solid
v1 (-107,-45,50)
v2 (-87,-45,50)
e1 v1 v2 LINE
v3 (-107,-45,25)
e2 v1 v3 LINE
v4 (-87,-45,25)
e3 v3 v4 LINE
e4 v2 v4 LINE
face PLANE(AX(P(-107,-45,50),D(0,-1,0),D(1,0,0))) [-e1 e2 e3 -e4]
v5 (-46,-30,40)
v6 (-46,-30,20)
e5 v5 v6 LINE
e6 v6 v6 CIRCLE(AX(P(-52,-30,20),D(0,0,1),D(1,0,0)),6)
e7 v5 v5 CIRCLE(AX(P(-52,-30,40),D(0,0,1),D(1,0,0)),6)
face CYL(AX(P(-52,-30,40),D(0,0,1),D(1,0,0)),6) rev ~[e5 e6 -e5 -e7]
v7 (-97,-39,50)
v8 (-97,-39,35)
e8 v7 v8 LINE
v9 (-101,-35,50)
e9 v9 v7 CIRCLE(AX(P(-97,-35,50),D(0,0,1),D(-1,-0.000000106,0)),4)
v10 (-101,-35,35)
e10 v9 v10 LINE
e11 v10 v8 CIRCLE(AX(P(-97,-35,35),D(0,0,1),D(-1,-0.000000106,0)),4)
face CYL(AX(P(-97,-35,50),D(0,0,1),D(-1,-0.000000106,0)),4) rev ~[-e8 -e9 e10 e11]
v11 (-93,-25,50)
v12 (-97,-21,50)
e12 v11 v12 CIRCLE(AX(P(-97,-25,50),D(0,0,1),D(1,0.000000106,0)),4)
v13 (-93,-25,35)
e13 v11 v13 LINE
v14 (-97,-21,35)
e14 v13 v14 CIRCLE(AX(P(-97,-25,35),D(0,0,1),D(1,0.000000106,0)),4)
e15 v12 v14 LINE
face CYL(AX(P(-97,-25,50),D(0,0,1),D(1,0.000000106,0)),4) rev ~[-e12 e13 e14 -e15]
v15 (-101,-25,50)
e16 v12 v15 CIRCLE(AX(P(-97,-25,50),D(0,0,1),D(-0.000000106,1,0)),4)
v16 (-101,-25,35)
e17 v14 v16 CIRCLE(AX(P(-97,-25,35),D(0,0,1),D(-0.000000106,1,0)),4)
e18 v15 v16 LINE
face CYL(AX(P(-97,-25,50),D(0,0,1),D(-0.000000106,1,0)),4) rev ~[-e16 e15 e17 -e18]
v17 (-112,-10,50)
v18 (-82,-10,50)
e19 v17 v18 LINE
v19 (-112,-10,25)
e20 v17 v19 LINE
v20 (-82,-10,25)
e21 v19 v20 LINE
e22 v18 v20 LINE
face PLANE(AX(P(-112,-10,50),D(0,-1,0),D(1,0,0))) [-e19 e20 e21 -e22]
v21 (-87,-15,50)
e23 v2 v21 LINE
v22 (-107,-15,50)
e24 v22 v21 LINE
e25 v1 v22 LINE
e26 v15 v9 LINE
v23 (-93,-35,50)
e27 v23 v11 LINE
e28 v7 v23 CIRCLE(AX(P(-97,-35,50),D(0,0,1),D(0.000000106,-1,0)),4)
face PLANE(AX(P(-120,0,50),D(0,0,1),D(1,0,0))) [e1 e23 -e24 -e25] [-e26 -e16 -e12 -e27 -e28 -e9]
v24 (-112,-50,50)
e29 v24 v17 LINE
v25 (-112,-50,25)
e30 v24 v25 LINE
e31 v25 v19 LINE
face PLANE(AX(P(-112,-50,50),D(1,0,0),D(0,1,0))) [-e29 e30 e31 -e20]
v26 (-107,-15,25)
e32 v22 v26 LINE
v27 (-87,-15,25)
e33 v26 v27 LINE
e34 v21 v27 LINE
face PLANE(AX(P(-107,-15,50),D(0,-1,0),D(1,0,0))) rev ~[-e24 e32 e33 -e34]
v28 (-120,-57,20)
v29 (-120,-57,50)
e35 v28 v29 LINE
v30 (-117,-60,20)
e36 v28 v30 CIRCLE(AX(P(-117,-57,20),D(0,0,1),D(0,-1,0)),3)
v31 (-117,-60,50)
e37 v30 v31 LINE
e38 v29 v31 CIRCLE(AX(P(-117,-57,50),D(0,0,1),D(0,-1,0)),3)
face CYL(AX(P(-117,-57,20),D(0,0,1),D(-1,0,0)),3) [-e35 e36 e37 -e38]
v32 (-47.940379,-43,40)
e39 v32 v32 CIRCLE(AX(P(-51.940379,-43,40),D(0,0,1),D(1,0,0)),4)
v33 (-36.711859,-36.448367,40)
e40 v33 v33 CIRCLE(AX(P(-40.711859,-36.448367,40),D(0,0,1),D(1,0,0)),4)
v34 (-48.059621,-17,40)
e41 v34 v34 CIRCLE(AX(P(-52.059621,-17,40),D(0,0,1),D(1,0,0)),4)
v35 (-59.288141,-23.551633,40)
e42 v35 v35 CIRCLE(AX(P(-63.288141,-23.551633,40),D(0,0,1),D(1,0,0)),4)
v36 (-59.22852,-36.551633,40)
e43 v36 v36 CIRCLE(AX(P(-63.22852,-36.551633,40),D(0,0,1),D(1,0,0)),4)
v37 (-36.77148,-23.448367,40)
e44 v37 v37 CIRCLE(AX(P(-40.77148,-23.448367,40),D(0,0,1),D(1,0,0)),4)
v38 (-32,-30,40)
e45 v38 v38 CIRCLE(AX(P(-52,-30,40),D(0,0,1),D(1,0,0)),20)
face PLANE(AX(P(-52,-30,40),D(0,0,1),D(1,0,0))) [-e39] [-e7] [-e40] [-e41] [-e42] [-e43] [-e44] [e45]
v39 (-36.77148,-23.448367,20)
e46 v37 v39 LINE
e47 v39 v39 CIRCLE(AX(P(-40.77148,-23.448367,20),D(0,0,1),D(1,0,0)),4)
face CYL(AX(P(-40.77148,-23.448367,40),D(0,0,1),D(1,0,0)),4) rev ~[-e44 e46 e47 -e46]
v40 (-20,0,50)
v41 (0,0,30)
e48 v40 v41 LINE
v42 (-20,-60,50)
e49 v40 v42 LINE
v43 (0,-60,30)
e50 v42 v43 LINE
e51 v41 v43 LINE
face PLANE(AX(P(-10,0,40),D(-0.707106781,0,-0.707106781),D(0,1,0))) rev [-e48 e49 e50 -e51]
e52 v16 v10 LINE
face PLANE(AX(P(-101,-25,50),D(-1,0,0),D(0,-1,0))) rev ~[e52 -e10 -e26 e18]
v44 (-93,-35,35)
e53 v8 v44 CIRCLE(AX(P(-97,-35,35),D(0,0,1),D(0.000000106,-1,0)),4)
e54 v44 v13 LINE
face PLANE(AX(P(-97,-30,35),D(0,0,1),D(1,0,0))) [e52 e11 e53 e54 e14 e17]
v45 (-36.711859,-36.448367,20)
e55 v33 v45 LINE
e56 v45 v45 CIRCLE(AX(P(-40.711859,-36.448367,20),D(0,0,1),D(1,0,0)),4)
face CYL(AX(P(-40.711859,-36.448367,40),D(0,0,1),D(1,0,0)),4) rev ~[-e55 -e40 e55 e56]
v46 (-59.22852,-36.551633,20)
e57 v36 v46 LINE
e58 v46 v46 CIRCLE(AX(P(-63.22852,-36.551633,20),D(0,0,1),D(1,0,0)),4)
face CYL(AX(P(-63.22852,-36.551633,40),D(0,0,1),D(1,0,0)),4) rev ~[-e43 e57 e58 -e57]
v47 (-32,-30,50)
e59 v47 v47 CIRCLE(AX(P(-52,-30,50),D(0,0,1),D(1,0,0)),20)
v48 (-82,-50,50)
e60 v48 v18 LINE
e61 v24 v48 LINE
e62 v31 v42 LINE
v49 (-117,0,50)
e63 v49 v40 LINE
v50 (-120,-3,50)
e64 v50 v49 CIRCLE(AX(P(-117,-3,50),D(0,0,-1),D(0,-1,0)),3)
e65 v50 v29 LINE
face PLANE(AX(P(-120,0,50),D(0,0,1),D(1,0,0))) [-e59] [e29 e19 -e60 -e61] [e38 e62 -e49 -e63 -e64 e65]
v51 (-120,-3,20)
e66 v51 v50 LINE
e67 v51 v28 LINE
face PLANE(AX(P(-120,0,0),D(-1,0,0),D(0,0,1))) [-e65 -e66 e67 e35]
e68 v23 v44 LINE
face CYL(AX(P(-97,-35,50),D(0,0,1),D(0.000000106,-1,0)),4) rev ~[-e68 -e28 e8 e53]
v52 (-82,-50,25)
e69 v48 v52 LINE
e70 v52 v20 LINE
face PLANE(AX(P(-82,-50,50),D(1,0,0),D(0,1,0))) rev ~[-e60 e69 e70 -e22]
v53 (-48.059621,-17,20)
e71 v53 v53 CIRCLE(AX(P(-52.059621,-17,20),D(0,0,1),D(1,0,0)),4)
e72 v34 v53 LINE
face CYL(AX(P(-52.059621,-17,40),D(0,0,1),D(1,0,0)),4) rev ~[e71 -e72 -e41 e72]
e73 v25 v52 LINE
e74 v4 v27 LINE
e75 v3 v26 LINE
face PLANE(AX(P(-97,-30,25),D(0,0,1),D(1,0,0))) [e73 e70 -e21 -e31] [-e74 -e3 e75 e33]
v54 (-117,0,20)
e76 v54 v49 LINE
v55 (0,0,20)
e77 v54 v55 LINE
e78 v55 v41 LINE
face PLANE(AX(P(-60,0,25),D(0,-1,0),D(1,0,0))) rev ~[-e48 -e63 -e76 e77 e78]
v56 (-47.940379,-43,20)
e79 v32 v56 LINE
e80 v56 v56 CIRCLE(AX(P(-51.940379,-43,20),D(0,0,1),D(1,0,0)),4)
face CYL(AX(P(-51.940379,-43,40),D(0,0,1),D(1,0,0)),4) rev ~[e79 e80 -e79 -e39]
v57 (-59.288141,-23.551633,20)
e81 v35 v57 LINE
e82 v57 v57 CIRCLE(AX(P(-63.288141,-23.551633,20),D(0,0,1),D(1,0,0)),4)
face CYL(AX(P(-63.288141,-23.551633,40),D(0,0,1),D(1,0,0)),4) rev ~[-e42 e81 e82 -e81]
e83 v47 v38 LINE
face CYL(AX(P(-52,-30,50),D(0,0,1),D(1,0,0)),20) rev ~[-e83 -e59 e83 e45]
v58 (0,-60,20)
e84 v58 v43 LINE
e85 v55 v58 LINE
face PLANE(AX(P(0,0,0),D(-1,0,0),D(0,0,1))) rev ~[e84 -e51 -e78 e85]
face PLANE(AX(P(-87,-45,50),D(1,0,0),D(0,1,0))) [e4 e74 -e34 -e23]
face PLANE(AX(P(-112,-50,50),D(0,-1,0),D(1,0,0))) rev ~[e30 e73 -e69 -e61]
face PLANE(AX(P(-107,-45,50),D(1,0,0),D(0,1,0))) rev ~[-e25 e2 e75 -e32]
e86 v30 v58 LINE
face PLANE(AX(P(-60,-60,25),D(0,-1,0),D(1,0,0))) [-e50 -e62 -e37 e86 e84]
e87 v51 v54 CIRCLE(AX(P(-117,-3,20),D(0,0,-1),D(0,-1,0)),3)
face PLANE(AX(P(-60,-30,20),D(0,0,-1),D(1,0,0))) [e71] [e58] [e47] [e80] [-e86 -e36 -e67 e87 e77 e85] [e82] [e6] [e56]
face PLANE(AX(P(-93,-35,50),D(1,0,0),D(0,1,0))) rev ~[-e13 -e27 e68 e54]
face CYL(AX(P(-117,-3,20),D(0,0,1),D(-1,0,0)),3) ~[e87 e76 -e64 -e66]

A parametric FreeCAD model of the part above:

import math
import FreeCAD as App
import Part
import Sketcher
from FreeCAD import Vector


def edges_at(feature, points):
    """Names of the edges that pass closest to the given points."""
    edges = feature.Shape.Edges
    near = lambda p: min(range(len(edges)), key=lambda i: edges[i].distToShape(Part.Vertex(*p))[0])
    return sorted({f"Edge{near(p) + 1}" for p in points})

doc = App.newDocument("Part")
body = doc.addObject("PartDesign::Body", "Body")

# Sketch on XZ plane
sketch1 = body.newObject("Sketcher::SketchObject", "Sketch")
sketch1.AttachmentSupport = (doc.getObject("XZ_Plane"), [""])
sketch1.MapMode = "FlatFace"
sketch1.addGeometry([
    Part.LineSegment(Vector(-120, 50, 0), Vector(-120, 0, 0)),
    Part.LineSegment(Vector(-120, 0, 0), Vector(0, 0, 0)),
    Part.LineSegment(Vector(0, 0, 0), Vector(0, 50, 0)),
    Part.LineSegment(Vector(0, 50, 0), Vector(-120, 50, 0)),
], False)
sketch1.addConstraint([
    Sketcher.Constraint("Coincident", 0, 2, 1, 1),
    Sketcher.Constraint("Coincident", 1, 2, 2, 1),
    Sketcher.Constraint("Coincident", 2, 2, 3, 1),
    Sketcher.Constraint("Coincident", 3, 2, 0, 1),
    Sketcher.Constraint("Vertical", 0),
    Sketcher.Constraint("Horizontal", 1),
    Sketcher.Constraint("Vertical", 2),
    Sketcher.Constraint("Horizontal", 3),
    Sketcher.Constraint("Coincident", 1, 2, -1, 1),
    Sketcher.Constraint("DistanceX", 1, 1, 1, 2, 120.0),
    Sketcher.Constraint("DistanceY", 0, 2, 0, 1, 50.0),
])
pad1 = body.newObject("PartDesign::Pad", "Pad")
pad1.Profile = sketch1
pad1.Length = 60

# Sketch on XY plane
sketch2 = body.newObject("Sketcher::SketchObject", "Sketch001")
sketch2.AttachmentSupport = (doc.getObject("XY_Plane"), [""])
sketch2.MapMode = "FlatFace"
sketch2.AttachmentOffset = App.Placement(Vector(0, 0, 50), App.Rotation())
sketch2.addGeometry([
    Part.LineSegment(Vector(-112, -10, 0), Vector(-112, -50, 0)),  # 0
    Part.LineSegment(Vector(-112, -50, 0), Vector(-82, -50, 0)),  # 1
    Part.LineSegment(Vector(-82, -50, 0), Vector(-82, -10, 0)),  # 2
    Part.LineSegment(Vector(-82, -10, 0), Vector(-112, -10, 0)),  # 3
    Part.LineSegment(Vector(-87, -45, 0), Vector(-107, -45, 0)),  # 4
    Part.LineSegment(Vector(-107, -45, 0), Vector(-107, -15, 0)),  # 5
    Part.LineSegment(Vector(-107, -15, 0), Vector(-87, -15, 0)),  # 6
    Part.LineSegment(Vector(-87, -15, 0), Vector(-87, -45, 0)),  # 7
], False)
sketch2.addConstraint([
    Sketcher.Constraint("Coincident", 0, 2, 1, 1),
    Sketcher.Constraint("Coincident", 1, 2, 2, 1),
    Sketcher.Constraint("Coincident", 2, 2, 3, 1),
    Sketcher.Constraint("Coincident", 3, 2, 0, 1),
    Sketcher.Constraint("Coincident", 4, 2, 5, 1),
    Sketcher.Constraint("Coincident", 5, 2, 6, 1),
    Sketcher.Constraint("Coincident", 6, 2, 7, 1),
    Sketcher.Constraint("Coincident", 7, 2, 4, 1),
    Sketcher.Constraint("Vertical", 0),
    Sketcher.Constraint("Horizontal", 1),
    Sketcher.Constraint("Vertical", 2),
    Sketcher.Constraint("Horizontal", 3),
    Sketcher.Constraint("Horizontal", 4),
    Sketcher.Constraint("Vertical", 5),
    Sketcher.Constraint("Horizontal", 6),
    Sketcher.Constraint("Vertical", 7),
    Sketcher.Constraint("Equal", 3, 5),
    Sketcher.Constraint("DistanceX", 1, 1, 1, 2, 30.0),
    Sketcher.Constraint("DistanceX", 4, 2, 4, 1, 20.0),
    Sketcher.Constraint("DistanceY", 0, 2, 0, 1, 40.0),
    Sketcher.Constraint("DistanceX", 0, 2, -1, 1, 112.0),
    Sketcher.Constraint("DistanceY", 0, 2, -1, 1, 50.0),
    Sketcher.Constraint("DistanceX", 4, 2, -1, 1, 107.0),
    Sketcher.Constraint("DistanceY", 4, 2, -1, 1, 45.0),
])
pocket1 = body.newObject("PartDesign::Pocket", "Pocket")
pocket1.Profile = sketch2
pocket1.Length = 25

# Sketch on XY plane
sketch3 = body.newObject("Sketcher::SketchObject", "Sketch002")
sketch3.AttachmentSupport = (doc.getObject("XY_Plane"), [""])
sketch3.MapMode = "FlatFace"
sketch3.AttachmentOffset = App.Placement(Vector(0, 0, 50), App.Rotation())
sketch3.addGeometry([
    Part.ArcOfCircle(Part.Circle(Vector(-97, -25, 0), Vector(0, 0, 1), 4), math.radians(90), math.radians(180)),  # 0
    Part.LineSegment(Vector(-101, -25, 0), Vector(-101, -35, 0)),  # 1
    Part.ArcOfCircle(Part.Circle(Vector(-97, -35, 0), Vector(0, 0, 1), 4), math.radians(-180), math.radians(-90)),  # 2
    Part.ArcOfCircle(Part.Circle(Vector(-97, -35, 0), Vector(0, 0, 1), 4), math.radians(-90), math.radians(0)),  # 3
    Part.LineSegment(Vector(-93, -35, 0), Vector(-93, -25, 0)),  # 4
    Part.ArcOfCircle(Part.Circle(Vector(-97, -25, 0), Vector(0, 0, 1), 4), math.radians(0), math.radians(90)),  # 5
], False)
sketch3.addConstraint([
    Sketcher.Constraint("Tangent", 0, 2, 1, 1),
    Sketcher.Constraint("Tangent", 1, 2, 2, 1),
    Sketcher.Constraint("Tangent", 2, 2, 3, 1),
    Sketcher.Constraint("Tangent", 3, 2, 4, 1),
    Sketcher.Constraint("Tangent", 4, 2, 5, 1),
    Sketcher.Constraint("Tangent", 5, 2, 0, 1),
    Sketcher.Constraint("Vertical", 1),
    Sketcher.Constraint("Vertical", 4),
    Sketcher.Constraint("Equal", 0, 2),
    Sketcher.Constraint("Equal", 2, 3),
    Sketcher.Constraint("Vertical", 5, 3, 2, 2),
    Sketcher.Constraint("Vertical", 2, 2, 5, 2),
    Sketcher.Constraint("Radius", 0, 4.0),
    Sketcher.Constraint("DistanceY", 1, 2, 1, 1, 10.0),
    Sketcher.Constraint("DistanceX", 0, 3, -1, 1, 97.0),
    Sketcher.Constraint("DistanceY", 0, 3, -1, 1, 25.0),
])
pocket2 = body.newObject("PartDesign::Pocket", "Pocket001")
pocket2.Profile = sketch3
pocket2.Length = 15
doc.recompute()

chamfer = body.newObject("PartDesign::Chamfer", "Chamfer")
chamfer.Base = (pocket2, edges_at(pocket2, [(0, -30, 50)]))
chamfer.Size = 20

# Sketch on XY plane
sketch4 = body.newObject("Sketcher::SketchObject", "Sketch003")
sketch4.AttachmentSupport = (doc.getObject("XY_Plane"), [""])
sketch4.MapMode = "FlatFace"
sketch4.AttachmentOffset = App.Placement(Vector(0, 0, 50), App.Rotation())
sketch4.addGeometry(Part.Circle(Vector(-52, -30, 0), Vector(0, 0, 1), 20), False)
sketch4.addConstraint([
    Sketcher.Constraint("Diameter", 0, 40.0),
    Sketcher.Constraint("DistanceX", 0, 3, -1, 1, 52.0),
    Sketcher.Constraint("DistanceY", 0, 3, -1, 1, 30.0),
])
pocket3 = body.newObject("PartDesign::Pocket", "Pocket002")
pocket3.Profile = sketch4
pocket3.Length = 10

# Sketch on XY plane
sketch5 = body.newObject("Sketcher::SketchObject", "Sketch004")
sketch5.AttachmentSupport = (doc.getObject("XY_Plane"), [""])
sketch5.MapMode = "FlatFace"
sketch5.AttachmentOffset = App.Placement(Vector(0, 0, 40), App.Rotation())
sketch5.addGeometry([
    Part.Circle(Vector(-52.1, -17, 0), Vector(0, 0, 1), 4),  # 0
    Part.Circle(Vector(-63.3, -23.6, 0), Vector(0, 0, 1), 4),  # 1
    Part.Circle(Vector(-63.2, -36.6, 0), Vector(0, 0, 1), 4),  # 2
    Part.Circle(Vector(-51.9, -43, 0), Vector(0, 0, 1), 4),  # 3
    Part.Circle(Vector(-40.7, -36.4, 0), Vector(0, 0, 1), 4),  # 4
    Part.Circle(Vector(-40.8, -23.4, 0), Vector(0, 0, 1), 4),  # 5
], False)
sketch5.addConstraint([
    Sketcher.Constraint("Equal", 0, 1),
    Sketcher.Constraint("Equal", 1, 2),
    Sketcher.Constraint("Equal", 2, 3),
    Sketcher.Constraint("Equal", 3, 4),
    Sketcher.Constraint("Equal", 4, 5),
    Sketcher.Constraint("Diameter", 0, 8.0),
    Sketcher.Constraint("DistanceY", 0, 3, -1, 1, 17.0),
    Sketcher.Constraint("DistanceY", 3, 3, -1, 1, 43.0),
    Sketcher.Constraint("DistanceY", 2, 3, 1, 3, 13.0),
    Sketcher.Constraint("DistanceY", 4, 3, 5, 3, 13.0),
    Sketcher.Constraint("DistanceX", 2, 3, 0, 3, 11.168899),
    Sketcher.Constraint("DistanceX", 3, 3, 5, 3, 11.168899),
    Sketcher.Constraint("DistanceX", 0, 3, -1, 1, 52.059621),
    Sketcher.Constraint("DistanceX", 1, 3, -1, 1, 63.288141),
    Sketcher.Constraint("DistanceX", 3, 3, -1, 1, 51.940379),
    Sketcher.Constraint("DistanceX", 4, 3, -1, 1, 40.711859),
    Sketcher.Constraint("DistanceY", 1, 3, -1, 1, 23.551633),
    Sketcher.Constraint("DistanceY", 4, 3, -1, 1, 36.448367),
])
pocket4 = body.newObject("PartDesign::Pocket", "Pocket003")
pocket4.Profile = sketch5
pocket4.Length = 20

# Sketch on XY plane
sketch6 = body.newObject("Sketcher::SketchObject", "Sketch005")
sketch6.AttachmentSupport = (doc.getObject("XY_Plane"), [""])
sketch6.MapMode = "FlatFace"
sketch6.addGeometry([
    Part.LineSegment(Vector(-120, -60, 0), Vector(-120, 0, 0)),
    Part.LineSegment(Vector(-120, 0, 0), Vector(0, 0, 0)),
    Part.LineSegment(Vector(0, 0, 0), Vector(0, -60, 0)),
    Part.LineSegment(Vector(0, -60, 0), Vector(-120, -60, 0)),
], False)
sketch6.addConstraint([
    Sketcher.Constraint("Coincident", 0, 2, 1, 1),
    Sketcher.Constraint("Coincident", 1, 2, 2, 1),
    Sketcher.Constraint("Coincident", 2, 2, 3, 1),
    Sketcher.Constraint("Coincident", 3, 2, 0, 1),
    Sketcher.Constraint("Vertical", 0),
    Sketcher.Constraint("Horizontal", 1),
    Sketcher.Constraint("Vertical", 2),
    Sketcher.Constraint("Horizontal", 3),
    Sketcher.Constraint("Coincident", 1, 2, -1, 1),
    Sketcher.Constraint("DistanceX", 1, 1, 1, 2, 120.0),
    Sketcher.Constraint("DistanceY", 0, 1, 0, 2, 60.0),
])
pocket5 = body.newObject("PartDesign::Pocket", "Pocket004")
pocket5.Profile = sketch6
pocket5.Length = 20
pocket5.Reversed = True

# Sketch on XY plane
sketch7 = body.newObject("Sketcher::SketchObject", "Sketch006")
sketch7.AttachmentSupport = (doc.getObject("XY_Plane"), [""])
sketch7.MapMode = "FlatFace"
sketch7.AttachmentOffset = App.Placement(Vector(0, 0, 40), App.Rotation())
sketch7.addGeometry(Part.Circle(Vector(-52, -30, 0), Vector(0, 0, 1), 6), False)
sketch7.addConstraint([
    Sketcher.Constraint("Diameter", 0, 12.0),
    Sketcher.Constraint("DistanceX", 0, 3, -1, 1, 52.0),
    Sketcher.Constraint("DistanceY", 0, 3, -1, 1, 30.0),
])
pocket6 = body.newObject("PartDesign::Pocket", "Pocket005")
pocket6.Profile = sketch7
pocket6.Length = 20
doc.recompute()

fillet = body.newObject("PartDesign::Fillet", "Fillet")
fillet.Base = (pocket6, edges_at(pocket6, [(-120, -60, 35)]))
fillet.Radius = 3
doc.recompute()

fillet2 = body.newObject("PartDesign::Fillet", "Fillet001")
fillet2.Base = (fillet, edges_at(fillet, [(-120, 0, 35)]))
fillet2.Radius = 3

doc.recompute()
